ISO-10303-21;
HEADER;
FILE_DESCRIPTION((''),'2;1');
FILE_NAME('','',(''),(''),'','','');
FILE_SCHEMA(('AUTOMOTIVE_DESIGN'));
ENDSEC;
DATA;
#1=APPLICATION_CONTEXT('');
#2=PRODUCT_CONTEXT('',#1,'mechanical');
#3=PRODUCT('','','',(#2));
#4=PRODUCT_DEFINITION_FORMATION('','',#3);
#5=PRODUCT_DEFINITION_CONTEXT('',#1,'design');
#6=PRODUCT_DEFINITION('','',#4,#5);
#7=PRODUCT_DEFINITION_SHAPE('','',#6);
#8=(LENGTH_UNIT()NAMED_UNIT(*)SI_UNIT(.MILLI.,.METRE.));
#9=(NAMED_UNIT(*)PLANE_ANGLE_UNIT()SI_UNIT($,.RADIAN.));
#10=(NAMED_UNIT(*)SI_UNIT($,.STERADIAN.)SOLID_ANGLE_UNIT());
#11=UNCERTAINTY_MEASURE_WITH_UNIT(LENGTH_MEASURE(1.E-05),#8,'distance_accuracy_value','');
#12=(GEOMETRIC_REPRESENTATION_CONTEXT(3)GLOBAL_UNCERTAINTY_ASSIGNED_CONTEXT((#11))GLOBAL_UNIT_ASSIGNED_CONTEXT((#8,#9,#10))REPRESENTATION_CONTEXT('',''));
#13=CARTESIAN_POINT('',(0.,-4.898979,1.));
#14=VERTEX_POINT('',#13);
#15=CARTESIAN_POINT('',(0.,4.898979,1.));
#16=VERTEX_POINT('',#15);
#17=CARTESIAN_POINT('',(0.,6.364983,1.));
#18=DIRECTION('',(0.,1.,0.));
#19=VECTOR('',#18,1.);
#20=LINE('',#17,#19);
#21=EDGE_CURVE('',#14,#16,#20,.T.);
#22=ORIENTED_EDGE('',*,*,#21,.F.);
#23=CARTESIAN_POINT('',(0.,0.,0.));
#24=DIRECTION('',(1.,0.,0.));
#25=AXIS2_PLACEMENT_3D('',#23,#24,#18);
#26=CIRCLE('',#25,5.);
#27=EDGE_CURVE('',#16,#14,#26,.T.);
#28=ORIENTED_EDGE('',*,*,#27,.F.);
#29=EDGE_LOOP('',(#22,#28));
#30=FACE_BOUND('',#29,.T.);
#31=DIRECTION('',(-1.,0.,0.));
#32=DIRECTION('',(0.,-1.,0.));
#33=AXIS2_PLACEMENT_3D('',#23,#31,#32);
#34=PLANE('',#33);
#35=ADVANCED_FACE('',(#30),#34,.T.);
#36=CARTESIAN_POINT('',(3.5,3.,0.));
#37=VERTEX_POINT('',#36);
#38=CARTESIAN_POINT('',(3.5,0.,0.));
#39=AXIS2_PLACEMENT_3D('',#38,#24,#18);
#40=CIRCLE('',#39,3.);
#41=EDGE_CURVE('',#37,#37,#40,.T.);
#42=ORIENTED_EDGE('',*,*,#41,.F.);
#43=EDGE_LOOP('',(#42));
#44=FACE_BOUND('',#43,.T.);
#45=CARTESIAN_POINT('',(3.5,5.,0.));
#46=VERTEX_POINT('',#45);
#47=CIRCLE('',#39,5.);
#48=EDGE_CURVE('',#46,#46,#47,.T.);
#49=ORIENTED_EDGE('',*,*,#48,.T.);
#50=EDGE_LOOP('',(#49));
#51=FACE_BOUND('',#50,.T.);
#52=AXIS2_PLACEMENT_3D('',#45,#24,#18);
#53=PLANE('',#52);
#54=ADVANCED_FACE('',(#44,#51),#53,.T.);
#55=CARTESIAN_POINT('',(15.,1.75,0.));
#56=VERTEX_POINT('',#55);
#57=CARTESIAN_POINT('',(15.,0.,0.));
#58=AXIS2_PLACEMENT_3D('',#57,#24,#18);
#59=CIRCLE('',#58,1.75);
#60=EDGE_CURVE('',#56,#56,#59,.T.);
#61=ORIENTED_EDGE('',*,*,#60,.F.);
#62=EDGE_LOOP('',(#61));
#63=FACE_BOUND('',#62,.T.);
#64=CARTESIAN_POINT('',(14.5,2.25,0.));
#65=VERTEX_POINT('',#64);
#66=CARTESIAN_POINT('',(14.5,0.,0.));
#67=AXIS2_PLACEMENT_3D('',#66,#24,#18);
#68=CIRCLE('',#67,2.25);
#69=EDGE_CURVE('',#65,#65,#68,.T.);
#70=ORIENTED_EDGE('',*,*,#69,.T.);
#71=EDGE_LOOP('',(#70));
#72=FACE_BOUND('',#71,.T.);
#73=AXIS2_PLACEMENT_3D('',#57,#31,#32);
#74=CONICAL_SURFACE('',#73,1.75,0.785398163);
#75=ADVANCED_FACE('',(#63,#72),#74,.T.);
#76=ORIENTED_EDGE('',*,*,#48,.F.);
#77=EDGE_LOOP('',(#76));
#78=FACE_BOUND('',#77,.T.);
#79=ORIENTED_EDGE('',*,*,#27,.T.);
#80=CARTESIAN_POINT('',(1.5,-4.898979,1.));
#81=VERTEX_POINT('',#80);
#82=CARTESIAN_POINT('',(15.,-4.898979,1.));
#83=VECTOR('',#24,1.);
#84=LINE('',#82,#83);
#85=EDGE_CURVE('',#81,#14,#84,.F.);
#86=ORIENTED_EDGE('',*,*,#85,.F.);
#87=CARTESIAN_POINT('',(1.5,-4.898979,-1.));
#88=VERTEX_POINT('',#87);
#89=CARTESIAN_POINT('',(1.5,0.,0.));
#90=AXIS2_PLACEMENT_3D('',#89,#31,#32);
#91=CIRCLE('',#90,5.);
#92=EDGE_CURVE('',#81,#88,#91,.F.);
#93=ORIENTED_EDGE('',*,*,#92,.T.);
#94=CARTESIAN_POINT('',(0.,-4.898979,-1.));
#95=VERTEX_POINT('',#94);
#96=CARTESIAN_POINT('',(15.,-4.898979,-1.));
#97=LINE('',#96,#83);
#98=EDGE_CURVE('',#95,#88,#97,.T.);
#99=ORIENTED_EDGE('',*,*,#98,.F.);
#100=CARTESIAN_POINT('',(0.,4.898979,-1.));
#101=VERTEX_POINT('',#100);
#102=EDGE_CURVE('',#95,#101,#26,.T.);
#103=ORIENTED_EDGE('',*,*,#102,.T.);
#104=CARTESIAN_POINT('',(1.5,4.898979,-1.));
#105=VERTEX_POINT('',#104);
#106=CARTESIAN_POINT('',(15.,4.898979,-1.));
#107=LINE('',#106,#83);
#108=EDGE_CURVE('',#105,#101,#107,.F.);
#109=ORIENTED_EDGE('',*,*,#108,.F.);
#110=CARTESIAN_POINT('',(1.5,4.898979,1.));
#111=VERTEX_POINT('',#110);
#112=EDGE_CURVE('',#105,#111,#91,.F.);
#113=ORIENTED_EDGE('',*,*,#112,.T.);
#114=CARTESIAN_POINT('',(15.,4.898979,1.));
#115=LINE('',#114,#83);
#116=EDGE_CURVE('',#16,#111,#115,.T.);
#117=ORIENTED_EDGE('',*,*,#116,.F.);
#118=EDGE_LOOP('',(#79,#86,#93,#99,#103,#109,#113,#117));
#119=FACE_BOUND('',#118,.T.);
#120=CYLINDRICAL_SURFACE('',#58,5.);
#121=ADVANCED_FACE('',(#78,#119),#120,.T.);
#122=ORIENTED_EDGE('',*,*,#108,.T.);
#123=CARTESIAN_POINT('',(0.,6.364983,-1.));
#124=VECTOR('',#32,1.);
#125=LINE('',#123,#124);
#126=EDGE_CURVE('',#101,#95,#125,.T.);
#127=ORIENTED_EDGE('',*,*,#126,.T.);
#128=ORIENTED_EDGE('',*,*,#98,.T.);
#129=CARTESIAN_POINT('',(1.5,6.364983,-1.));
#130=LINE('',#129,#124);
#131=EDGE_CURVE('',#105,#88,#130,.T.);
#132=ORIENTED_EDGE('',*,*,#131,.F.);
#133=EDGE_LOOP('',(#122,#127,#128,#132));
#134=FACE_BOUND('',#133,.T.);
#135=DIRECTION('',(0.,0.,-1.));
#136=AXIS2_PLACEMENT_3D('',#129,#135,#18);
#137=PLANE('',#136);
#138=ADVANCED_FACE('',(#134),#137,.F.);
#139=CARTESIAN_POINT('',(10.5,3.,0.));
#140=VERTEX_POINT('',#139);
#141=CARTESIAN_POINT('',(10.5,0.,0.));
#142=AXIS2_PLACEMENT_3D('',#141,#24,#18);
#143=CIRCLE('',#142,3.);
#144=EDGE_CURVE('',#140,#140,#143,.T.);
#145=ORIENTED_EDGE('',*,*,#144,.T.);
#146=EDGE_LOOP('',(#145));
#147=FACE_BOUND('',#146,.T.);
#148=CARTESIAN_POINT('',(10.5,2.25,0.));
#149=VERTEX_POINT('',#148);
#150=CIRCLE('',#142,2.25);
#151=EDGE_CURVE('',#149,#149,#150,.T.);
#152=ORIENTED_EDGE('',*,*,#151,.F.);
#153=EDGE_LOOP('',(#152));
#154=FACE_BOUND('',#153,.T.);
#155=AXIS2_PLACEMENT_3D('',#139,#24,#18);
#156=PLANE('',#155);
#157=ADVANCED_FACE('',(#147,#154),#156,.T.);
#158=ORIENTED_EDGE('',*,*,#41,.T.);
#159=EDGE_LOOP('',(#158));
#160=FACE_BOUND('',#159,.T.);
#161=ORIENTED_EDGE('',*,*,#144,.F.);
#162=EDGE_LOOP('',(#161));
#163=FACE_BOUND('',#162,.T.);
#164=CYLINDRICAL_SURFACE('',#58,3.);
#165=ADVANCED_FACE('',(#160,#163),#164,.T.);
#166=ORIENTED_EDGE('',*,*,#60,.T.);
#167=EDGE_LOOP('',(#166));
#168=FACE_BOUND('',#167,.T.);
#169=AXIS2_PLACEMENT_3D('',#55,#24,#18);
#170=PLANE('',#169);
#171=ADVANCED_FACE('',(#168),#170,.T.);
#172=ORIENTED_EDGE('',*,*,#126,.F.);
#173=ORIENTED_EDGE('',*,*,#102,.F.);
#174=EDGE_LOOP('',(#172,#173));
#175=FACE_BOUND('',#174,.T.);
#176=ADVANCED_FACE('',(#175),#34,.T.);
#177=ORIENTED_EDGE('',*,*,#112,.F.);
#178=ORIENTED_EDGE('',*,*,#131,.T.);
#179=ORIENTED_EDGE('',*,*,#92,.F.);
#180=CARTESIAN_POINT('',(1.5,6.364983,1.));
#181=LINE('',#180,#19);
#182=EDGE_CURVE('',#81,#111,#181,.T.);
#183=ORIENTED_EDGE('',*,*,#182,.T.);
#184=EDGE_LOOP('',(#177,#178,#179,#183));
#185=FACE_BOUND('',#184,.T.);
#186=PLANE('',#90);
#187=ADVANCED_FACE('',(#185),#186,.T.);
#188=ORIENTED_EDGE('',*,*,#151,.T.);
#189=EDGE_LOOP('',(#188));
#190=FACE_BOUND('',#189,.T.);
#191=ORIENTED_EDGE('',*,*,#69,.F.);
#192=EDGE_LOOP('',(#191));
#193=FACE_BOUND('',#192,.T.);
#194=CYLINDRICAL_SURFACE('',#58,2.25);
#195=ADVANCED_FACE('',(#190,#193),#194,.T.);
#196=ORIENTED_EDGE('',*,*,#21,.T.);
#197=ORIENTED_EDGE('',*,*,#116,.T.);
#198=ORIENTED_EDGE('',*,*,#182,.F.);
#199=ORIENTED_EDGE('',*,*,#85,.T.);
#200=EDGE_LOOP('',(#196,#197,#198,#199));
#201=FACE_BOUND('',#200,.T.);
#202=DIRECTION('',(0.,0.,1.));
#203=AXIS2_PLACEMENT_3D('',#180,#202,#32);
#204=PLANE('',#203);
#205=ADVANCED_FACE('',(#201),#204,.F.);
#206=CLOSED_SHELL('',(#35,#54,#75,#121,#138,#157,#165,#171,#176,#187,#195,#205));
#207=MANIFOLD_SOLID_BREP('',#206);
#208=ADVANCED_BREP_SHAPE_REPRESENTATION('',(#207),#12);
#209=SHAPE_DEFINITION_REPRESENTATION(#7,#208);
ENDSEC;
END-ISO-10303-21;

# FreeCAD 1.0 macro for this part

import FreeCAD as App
import Part
import Sketcher
Q = App.Units.Quantity


def add_polygon(sketch, points):
    """Adds a closed chain of lines whose ends are joined by coincident constraints."""
    first, n = sketch.GeometryCount, len(points)
    for a, b in zip(points, points[1:] + points[:1]):
        sketch.addGeometry(Part.LineSegment(App.Vector(*a, 0), App.Vector(*b, 0)), False)
    for i in range(n):
        sketch.addConstraint(Sketcher.Constraint("Coincident", first + i, 2, first + (i + 1) % n, 1))

doc = App.newDocument("Part")
body = doc.addObject("PartDesign::Body", "Body")

sketch1 = body.newObject("Sketcher::SketchObject", "Sketch")
sketch1.AttachmentSupport = (doc.getObject("XY_Plane"), [""])
sketch1.MapMode = "FlatFace"
add_polygon(sketch1, [(0, 5), (0, 0), (15, 0), (15, 1.8), (14.5, 2.2), (10.5, 2.2), (10.5, 3), (3.5, 3), (3.5, 5)])
sketch1.addConstraint([
    Sketcher.Constraint("Vertical", 0),
    Sketcher.Constraint("Horizontal", 1),
    Sketcher.Constraint("Vertical", 2),
    Sketcher.Constraint("Horizontal", 4),
    Sketcher.Constraint("Vertical", 5),
    Sketcher.Constraint("Horizontal", 6),
    Sketcher.Constraint("Vertical", 7),
    Sketcher.Constraint("Horizontal", 8),
    Sketcher.Constraint("Coincident", 0, 2, -1, 1),
    Sketcher.Constraint("DistanceX", 1, 1, 1, 2, 15.0),
    Sketcher.Constraint("DistanceX", 4, 2, 4, 1, 4.0),
    Sketcher.Constraint("DistanceX", 6, 2, 6, 1, 7.0),
    Sketcher.Constraint("DistanceY", 0, 2, 0, 1, 5.0),
    Sketcher.Constraint("DistanceY", 7, 1, 7, 2, 2.0),
    Sketcher.Constraint("Angle", 3, Q("135 deg")),
    Sketcher.Constraint("DistanceX", 8, 2, 8, 1, 3.5),
    Sketcher.Constraint("DistanceY", 2, 1, 2, 2, 1.75),
])
revolution = body.newObject("PartDesign::Revolution", "Revolution")
revolution.Profile = sketch1
revolution.ReferenceAxis = (sketch1, ["H_Axis"])
revolution.Angle = 360

sketch2 = body.newObject("Sketcher::SketchObject", "Sketch001")
sketch2.AttachmentSupport = (doc.getObject("YZ_Plane"), [""])
sketch2.MapMode = "FlatFace"
add_polygon(sketch2, [(6.4, -1), (-6.5, -1), (-6.5, 1), (6.4, 1)])
sketch2.addConstraint([
    Sketcher.Constraint("Horizontal", 0),
    Sketcher.Constraint("Vertical", 1),
    Sketcher.Constraint("Horizontal", 2),
    Sketcher.Constraint("Vertical", 3),
    Sketcher.Constraint("DistanceY", 1, 1, 1, 2, 2.0),
    Sketcher.Constraint("DistanceY", 0, 2, -1, 1, 1.0),
    Sketcher.Constraint("DistanceX", 0, 2, -1, 1, 6.468102),
    Sketcher.Constraint("DistanceX", 0, 2, 0, 1, 12.833084),
])
pocket1 = body.newObject("PartDesign::Pocket", "Pocket")
pocket1.Profile = sketch2
pocket1.Length = 1.5
pocket1.Reversed = True

doc.recompute()
